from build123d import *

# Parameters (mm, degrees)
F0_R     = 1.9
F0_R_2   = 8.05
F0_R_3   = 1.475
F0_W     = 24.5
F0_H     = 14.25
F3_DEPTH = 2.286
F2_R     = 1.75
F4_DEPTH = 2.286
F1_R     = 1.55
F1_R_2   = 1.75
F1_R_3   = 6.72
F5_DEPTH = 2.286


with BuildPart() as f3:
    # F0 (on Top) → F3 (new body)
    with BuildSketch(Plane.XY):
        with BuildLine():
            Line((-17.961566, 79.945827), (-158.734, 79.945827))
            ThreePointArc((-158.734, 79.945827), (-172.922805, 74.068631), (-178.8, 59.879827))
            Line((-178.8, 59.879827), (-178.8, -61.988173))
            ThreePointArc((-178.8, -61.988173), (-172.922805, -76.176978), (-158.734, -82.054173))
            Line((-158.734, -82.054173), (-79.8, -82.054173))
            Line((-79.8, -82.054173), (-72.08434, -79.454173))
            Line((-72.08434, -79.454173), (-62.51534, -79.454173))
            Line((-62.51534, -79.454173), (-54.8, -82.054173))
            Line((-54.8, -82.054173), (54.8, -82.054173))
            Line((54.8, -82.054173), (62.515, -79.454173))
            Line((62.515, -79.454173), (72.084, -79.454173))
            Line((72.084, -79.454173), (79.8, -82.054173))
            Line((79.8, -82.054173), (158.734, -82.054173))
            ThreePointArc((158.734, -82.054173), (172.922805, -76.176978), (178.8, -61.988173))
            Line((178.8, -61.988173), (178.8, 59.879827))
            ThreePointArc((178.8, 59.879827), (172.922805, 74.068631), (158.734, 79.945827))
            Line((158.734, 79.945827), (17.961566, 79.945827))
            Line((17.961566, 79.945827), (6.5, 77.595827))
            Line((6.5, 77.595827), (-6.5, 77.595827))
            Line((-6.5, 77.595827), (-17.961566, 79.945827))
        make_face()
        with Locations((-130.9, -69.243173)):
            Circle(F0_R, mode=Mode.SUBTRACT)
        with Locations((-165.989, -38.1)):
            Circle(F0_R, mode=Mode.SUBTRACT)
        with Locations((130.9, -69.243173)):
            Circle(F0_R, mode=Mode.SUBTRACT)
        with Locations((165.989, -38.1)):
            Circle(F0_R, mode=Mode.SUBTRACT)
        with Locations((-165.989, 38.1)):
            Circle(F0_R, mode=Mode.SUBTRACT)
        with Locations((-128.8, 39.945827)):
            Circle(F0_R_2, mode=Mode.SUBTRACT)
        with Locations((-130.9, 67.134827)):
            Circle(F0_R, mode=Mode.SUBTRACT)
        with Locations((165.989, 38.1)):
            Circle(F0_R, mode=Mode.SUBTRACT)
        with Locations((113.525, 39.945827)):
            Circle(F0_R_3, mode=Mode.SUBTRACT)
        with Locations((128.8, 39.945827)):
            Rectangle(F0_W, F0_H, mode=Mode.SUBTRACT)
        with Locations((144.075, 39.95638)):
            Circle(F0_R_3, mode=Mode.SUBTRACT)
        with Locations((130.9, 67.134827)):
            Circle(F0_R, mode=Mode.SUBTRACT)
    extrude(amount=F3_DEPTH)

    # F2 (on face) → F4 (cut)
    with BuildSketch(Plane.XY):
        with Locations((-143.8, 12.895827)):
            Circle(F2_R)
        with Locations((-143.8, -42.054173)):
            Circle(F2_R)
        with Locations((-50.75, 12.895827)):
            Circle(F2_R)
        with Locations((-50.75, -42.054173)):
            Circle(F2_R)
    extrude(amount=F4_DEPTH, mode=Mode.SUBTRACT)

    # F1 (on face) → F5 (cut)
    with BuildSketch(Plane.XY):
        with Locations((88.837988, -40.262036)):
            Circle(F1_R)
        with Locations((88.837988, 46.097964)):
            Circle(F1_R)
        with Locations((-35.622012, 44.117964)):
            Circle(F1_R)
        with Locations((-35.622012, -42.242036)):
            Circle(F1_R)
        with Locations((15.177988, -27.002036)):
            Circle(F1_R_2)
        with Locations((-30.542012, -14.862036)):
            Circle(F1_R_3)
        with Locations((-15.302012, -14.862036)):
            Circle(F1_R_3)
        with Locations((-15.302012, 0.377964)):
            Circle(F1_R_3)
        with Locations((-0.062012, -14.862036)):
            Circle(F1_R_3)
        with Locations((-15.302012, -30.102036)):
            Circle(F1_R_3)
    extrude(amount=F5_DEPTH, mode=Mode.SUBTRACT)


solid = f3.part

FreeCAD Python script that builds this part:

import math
import FreeCAD as App
import Part
import Sketcher

V = App.Vector
Q = App.Units.Quantity

doc = App.newDocument("Part")
params = doc.addObject("Spreadsheet::Sheet", "Params")
for row, (alias, value) in enumerate([
    ("sketch1_diameter", "3.8 mm"),
    ("sketch1_diameter2", "16.1 mm"),
    ("sketch1_diameter3", "2.95 mm"),
    ("sketch1_width", "13 mm"),
    ("sketch1_width2", "109.6 mm"),
    ("pad1_length", "2.286 mm"),
    ("sketch2_diameter", "3.5 mm"),
    ("pocket1_length", "2.286 mm"),
    ("sketch3_diameter", "3.1 mm"),
    ("sketch3_diameter2", "3.5 mm"),
    ("sketch3_diameter3", "13.44 mm"),
    ("pocket2_length", "2.286 mm"),
], start=1):
    params.set(f"A{row}", alias)
    params.set(f"B{row}", "=" + value)
    params.setAlias(f"B{row}", alias)

body = doc.addObject("PartDesign::Body", "Body")

sketch1 = body.newObject("Sketcher::SketchObject", "Sketch")
sketch1.AttachmentSupport = (doc.getObject("XY_Plane"), [""])
sketch1.MapMode = "FlatFace"
sketch1.addGeometry(Part.LineSegment(V(-17.961566, 79.945827, 0), V(-158.734, 79.945827, 0)), False)
sketch1.addGeometry(Part.ArcOfCircle(Part.Circle(V(-158.733999, 59.879826, 0), V(0, 0, 1), 20.066001), math.radians(90.000002), math.radians(179.999998)), False)
sketch1.addGeometry(Part.LineSegment(V(-178.8, 59.879827, 0), V(-178.8, -61.988173, 0)), False)
sketch1.addGeometry(Part.ArcOfCircle(Part.Circle(V(-158.734001, -61.988174, 0), V(0, 0, 1), 20.065999), math.radians(179.999997), math.radians(270.000003)), False)
sketch1.addGeometry(Part.LineSegment(V(-158.734, -82.054173, 0), V(-79.8, -82.054173, 0)), False)
sketch1.addGeometry(Part.LineSegment(V(-79.8, -82.054173, 0), V(-72.08434, -79.454173, 0)), False)
sketch1.addGeometry(Part.LineSegment(V(-72.08434, -79.454173, 0), V(-62.51534, -79.454173, 0)), False)
sketch1.addGeometry(Part.LineSegment(V(-62.51534, -79.454173, 0), V(-54.8, -82.054173, 0)), False)
sketch1.addGeometry(Part.LineSegment(V(-54.8, -82.054173, 0), V(54.8, -82.054173, 0)), False)
sketch1.addGeometry(Part.LineSegment(V(54.8, -82.054173, 0), V(62.515, -79.454173, 0)), False)
sketch1.addGeometry(Part.LineSegment(V(62.515, -79.454173, 0), V(72.084, -79.454173, 0)), False)
sketch1.addGeometry(Part.LineSegment(V(72.084, -79.454173, 0), V(79.8, -82.054173, 0)), False)
sketch1.addGeometry(Part.LineSegment(V(79.8, -82.054173, 0), V(158.734, -82.054173, 0)), False)
sketch1.addGeometry(Part.ArcOfCircle(Part.Circle(V(158.734001, -61.988174, 0), V(0, 0, 1), 20.065999), math.radians(-90.000003), math.radians(0.000003)), False)
sketch1.addGeometry(Part.LineSegment(V(178.8, -61.988173, 0), V(178.8, 59.879827, 0)), False)
sketch1.addGeometry(Part.ArcOfCircle(Part.Circle(V(158.733999, 59.879826, 0), V(0, 0, 1), 20.066001), math.radians(0.000002), math.radians(89.999998)), False)
sketch1.addGeometry(Part.LineSegment(V(158.734, 79.945827, 0), V(17.961566, 79.945827, 0)), False)
sketch1.addGeometry(Part.LineSegment(V(17.961566, 79.945827, 0), V(6.5, 77.595827, 0)), False)
sketch1.addGeometry(Part.LineSegment(V(6.5, 77.595827, 0), V(-6.5, 77.595827, 0)), False)
sketch1.addGeometry(Part.LineSegment(V(-6.5, 77.595827, 0), V(-17.961566, 79.945827, 0)), False)
sketch1.addGeometry(Part.Circle(V(-130.9, -69.243173, 0), V(0, 0, 1), 1.9), False)
sketch1.addGeometry(Part.Circle(V(-165.989, -38.1, 0), V(0, 0, 1), 1.9), False)
sketch1.addGeometry(Part.Circle(V(130.9, -69.243173, 0), V(0, 0, 1), 1.9), False)
sketch1.addGeometry(Part.Circle(V(165.989, -38.1, 0), V(0, 0, 1), 1.9), False)
sketch1.addGeometry(Part.Circle(V(-165.989, 38.1, 0), V(0, 0, 1), 1.9), False)
sketch1.addGeometry(Part.Circle(V(-128.8, 39.945827, 0), V(0, 0, 1), 8.05), False)
sketch1.addGeometry(Part.Circle(V(-130.9, 67.134827, 0), V(0, 0, 1), 1.9), False)
sketch1.addGeometry(Part.Circle(V(113.525, 39.945827, 0), V(0, 0, 1), 1.475), False)
sketch1.addGeometry(Part.LineSegment(V(141.05, 32.820827, 0), V(116.55, 32.820827, 0)), False)
sketch1.addGeometry(Part.LineSegment(V(116.55, 32.820827, 0), V(116.55, 47.070827, 0)), False)
sketch1.addGeometry(Part.LineSegment(V(116.55, 47.070827, 0), V(141.05, 47.070827, 0)), False)
sketch1.addGeometry(Part.LineSegment(V(141.05, 47.070827, 0), V(141.05, 32.820827, 0)), False)
sketch1.addGeometry(Part.Circle(V(144.075, 39.95638, 0), V(0, 0, 1), 1.475), False)
sketch1.addGeometry(Part.Circle(V(165.989, 38.1, 0), V(0, 0, 1), 1.9), False)
sketch1.addGeometry(Part.Circle(V(130.9, 67.134827, 0), V(0, 0, 1), 1.9), False)
sketch1.addConstraint(Sketcher.Constraint("Tangent", 0, 2, 1, 1))
sketch1.addConstraint(Sketcher.Constraint("Tangent", 1, 2, 2, 1))
sketch1.addConstraint(Sketcher.Constraint("Tangent", 2, 2, 3, 1))
sketch1.addConstraint(Sketcher.Constraint("Tangent", 3, 2, 4, 1))
sketch1.addConstraint(Sketcher.Constraint("Coincident", 4, 2, 5, 1))
sketch1.addConstraint(Sketcher.Constraint("Coincident", 5, 2, 6, 1))
sketch1.addConstraint(Sketcher.Constraint("Coincident", 6, 2, 7, 1))
sketch1.addConstraint(Sketcher.Constraint("Coincident", 7, 2, 8, 1))
sketch1.addConstraint(Sketcher.Constraint("Coincident", 8, 2, 9, 1))
sketch1.addConstraint(Sketcher.Constraint("Coincident", 9, 2, 10, 1))
sketch1.addConstraint(Sketcher.Constraint("Coincident", 10, 2, 11, 1))
sketch1.addConstraint(Sketcher.Constraint("Coincident", 11, 2, 12, 1))
sketch1.addConstraint(Sketcher.Constraint("Tangent", 12, 2, 13, 1))
sketch1.addConstraint(Sketcher.Constraint("Tangent", 13, 2, 14, 1))
sketch1.addConstraint(Sketcher.Constraint("Tangent", 14, 2, 15, 1))
sketch1.addConstraint(Sketcher.Constraint("Tangent", 15, 2, 16, 1))
sketch1.addConstraint(Sketcher.Constraint("Coincident", 16, 2, 17, 1))
sketch1.addConstraint(Sketcher.Constraint("Coincident", 17, 2, 18, 1))
sketch1.addConstraint(Sketcher.Constraint("Coincident", 18, 2, 19, 1))
sketch1.addConstraint(Sketcher.Constraint("Coincident", 19, 2, 0, 1))
sketch1.addConstraint(Sketcher.Constraint("Coincident", 28, 2, 29, 1))
sketch1.addConstraint(Sketcher.Constraint("Coincident", 29, 2, 30, 1))
sketch1.addConstraint(Sketcher.Constraint("Coincident", 30, 2, 31, 1))
sketch1.addConstraint(Sketcher.Constraint("Coincident", 31, 2, 28, 1))
sketch1.addConstraint(Sketcher.Constraint("Horizontal", 0))
sketch1.addConstraint(Sketcher.Constraint("Vertical", 2))
sketch1.addConstraint(Sketcher.Constraint("Horizontal", 4))
sketch1.addConstraint(Sketcher.Constraint("Horizontal", 6))
sketch1.addConstraint(Sketcher.Constraint("Horizontal", 8))
sketch1.addConstraint(Sketcher.Constraint("Horizontal", 10))
sketch1.addConstraint(Sketcher.Constraint("Horizontal", 12))
sketch1.addConstraint(Sketcher.Constraint("Vertical", 14))
sketch1.addConstraint(Sketcher.Constraint("Horizontal", 16))
sketch1.addConstraint(Sketcher.Constraint("Horizontal", 18))
sketch1.addConstraint(Sketcher.Constraint("Horizontal", 28))
sketch1.addConstraint(Sketcher.Constraint("Vertical", 29))
sketch1.addConstraint(Sketcher.Constraint("Horizontal", 30))
sketch1.addConstraint(Sketcher.Constraint("Vertical", 31))
sketch1.addConstraint(Sketcher.Constraint("Equal", 1, 3))
sketch1.addConstraint(Sketcher.Constraint("Equal", 3, 13))
sketch1.addConstraint(Sketcher.Constraint("Equal", 13, 15))
sketch1.addConstraint(Sketcher.Constraint("Equal", 20, 21))
sketch1.addConstraint(Sketcher.Constraint("Equal", 21, 22))
sketch1.addConstraint(Sketcher.Constraint("Equal", 22, 23))
sketch1.addConstraint(Sketcher.Constraint("Equal", 23, 24))
sketch1.addConstraint(Sketcher.Constraint("Equal", 24, 26))
sketch1.addConstraint(Sketcher.Constraint("Equal", 27, 32))
sketch1.addConstraint(Sketcher.Constraint("Equal", 26, 33))
sketch1.addConstraint(Sketcher.Constraint("Equal", 33, 34))
sketch1.addConstraint(Sketcher.Constraint("Symmetric", 23, 3, 24, 3, -1, 1))
sketch1.addConstraint(Sketcher.Constraint("Symmetric", 21, 3, 33, 3, -1, 1))
sketch1.addConstraint(Sketcher.Constraint("Symmetric", 3, 3, 13, 3, -2))
sketch1.addConstraint(Sketcher.Constraint("Symmetric", 20, 3, 22, 3, -2))
sketch1.addConstraint(Sketcher.Constraint("Symmetric", 21, 3, 23, 3, -2))
sketch1.addConstraint(Sketcher.Constraint("Symmetric", 26, 3, 34, 3, -2))
sketch1.addConstraint(Sketcher.Constraint("Symmetric", 16, 2, 19, 2, -2))
sketch1.addConstraint(Sketcher.Constraint("Horizontal", 25, 3, 27, 3))
sketch1.addConstraint(Sketcher.Constraint("Horizontal", 4, 2, 7, 2))
sketch1.addConstraint(Sketcher.Constraint("Horizontal", 6, 2, 9, 2))
sketch1.addConstraint(Sketcher.Constraint("Vertical", 20, 3, 26, 3))
sketch1.addConstraint(Sketcher.Constraint("Equal", 6, 10))
sketch1.addConstraint(Sketcher.Constraint("Equal", 4, 12))
sketch1.addConstraint(Sketcher.Constraint("Equal", 17, 19))
sketch1.addConstraint(Sketcher.Constraint("Diameter", 20, Q("3.8 mm")))
sketch1.addConstraint(Sketcher.Constraint("Diameter", 25, Q("16.1 mm")))
sketch1.addConstraint(Sketcher.Constraint("Diameter", 27, Q("2.95 mm")))
sketch1.addConstraint(Sketcher.Constraint("DistanceX", 18, 2, 18, 1, Q("13 mm")))
sketch1.addConstraint(Sketcher.Constraint("DistanceX", 8, 1, 8, 2, Q("109.6 mm")))
sketch1.addConstraint(Sketcher.Constraint("DistanceX", 28, 2, 28, 1, Q("24.5 mm")))
sketch1.addConstraint(Sketcher.Constraint("Radius", 1, Q("20.066001 mm")))
sketch1.addConstraint(Sketcher.Constraint("DistanceY", 25, 3, 0, 2, Q("40 mm")))
sketch1.addConstraint(Sketcher.Constraint("DistanceX", 1, 2, 25, 3, Q("50 mm")))
sketch1.addConstraint(Sketcher.Constraint("DistanceX", 2, 2, 4, 2, Q("99 mm")))
sketch1.addConstraint(Sketcher.Constraint("DistanceX", 4, 2, 7, 2, Q("25 mm")))
sketch1.addConstraint(Sketcher.Constraint("DistanceX", 8, 2, 11, 2, Q("25 mm")))
sketch1.addConstraint(Sketcher.Constraint("Distance", 17, Q("11.7 mm")))
sketch1.addConstraint(Sketcher.Constraint("DistanceY", 29, 1, 29, 2, Q("14.25 mm")))
sketch1.addConstraint(Sketcher.Constraint("DistanceX", 20, 3, -1, 1, Q("130.9 mm")))
sketch1.addConstraint(Sketcher.Constraint("DistanceY", 21, 3, -1, 1, Q("38.1 mm")))
sketch1.addConstraint(Sketcher.Constraint("DistanceY", 4, 2, 5, 2, Q("2.6 mm")))
sketch1.addConstraint(Sketcher.Constraint("DistanceX", 6, 1, 6, 2, Q("9.569 mm")))
sketch1.addConstraint(Sketcher.Constraint("DistanceY", 2, 2, 2, 1, Q("121.868 mm")))
sketch1.addConstraint(Sketcher.Constraint("DistanceX", -1, 1, 28, 2, Q("116.55 mm")))
sketch1.addConstraint(Sketcher.Constraint("DistanceX", 27, 3, 32, 3, Q("30.55 mm")))
sketch1.addConstraint(Sketcher.Constraint("DistanceX", 10, 2, 13, 3, Q("86.650001 mm")))
sketch1.addConstraint(Sketcher.Constraint("DistanceY", 17, 2, 16, 2, Q("2.35 mm")))
sketch1.addConstraint(Sketcher.Constraint("DistanceX", 21, 3, -1, 1, Q("165.989 mm")))
sketch1.addConstraint(Sketcher.Constraint("DistanceX", -1, 1, 27, 3, Q("113.525 mm")))
sketch1.addConstraint(Sketcher.Constraint("DistanceY", 20, 3, 3, 3, Q("7.254999 mm")))
sketch1.addConstraint(Sketcher.Constraint("DistanceY", 25, 3, 26, 3, Q("27.189 mm")))
sketch1.addConstraint(Sketcher.Constraint("DistanceY", 28, 2, 27, 3, Q("7.125 mm")))
sketch1.addConstraint(Sketcher.Constraint("Distance", 7, Q("8.14165 mm")))
sketch1.addConstraint(Sketcher.Constraint("DistanceY", -1, 1, 32, 3, Q("39.95638 mm")))
sketch1.addConstraint(Sketcher.Constraint("DistanceY", -1, 1, 1, 3, Q("59.879826 mm")))
sketch1.setExpression("Constraints[63]", "Params.sketch1_diameter")
sketch1.setExpression("Constraints[64]", "Params.sketch1_diameter2")
sketch1.setExpression("Constraints[65]", "Params.sketch1_diameter3")
sketch1.setExpression("Constraints[66]", "Params.sketch1_width")
sketch1.setExpression("Constraints[67]", "Params.sketch1_width2")
pad1 = body.newObject("PartDesign::Pad", "Pad")
pad1.Profile = sketch1
pad1.setExpression("Length", "Params.pad1_length")

sketch2 = body.newObject("Sketcher::SketchObject", "Sketch001")
sketch2.AttachmentSupport = (doc.getObject("XY_Plane"), [""])
sketch2.MapMode = "FlatFace"
sketch2.addGeometry(Part.Circle(V(-143.8, 12.895827, 0), V(0, 0, 1), 1.75), False)
sketch2.addGeometry(Part.Circle(V(-143.8, -42.054173, 0), V(0, 0, 1), 1.75), False)
sketch2.addGeometry(Part.Circle(V(-50.75, 12.895827, 0), V(0, 0, 1), 1.75), False)
sketch2.addGeometry(Part.Circle(V(-50.75, -42.054173, 0), V(0, 0, 1), 1.75), False)
sketch2.addConstraint(Sketcher.Constraint("Equal", 0, 1))
sketch2.addConstraint(Sketcher.Constraint("Equal", 1, 2))
sketch2.addConstraint(Sketcher.Constraint("Equal", 2, 3))
sketch2.addConstraint(Sketcher.Constraint("Horizontal", 0, 3, 2, 3))
sketch2.addConstraint(Sketcher.Constraint("Horizontal", 1, 3, 3, 3))
sketch2.addConstraint(Sketcher.Constraint("Vertical", 0, 3, 1, 3))
sketch2.addConstraint(Sketcher.Constraint("Vertical", 2, 3, 3, 3))
sketch2.addConstraint(Sketcher.Constraint("Diameter", 0, Q("3.5 mm")))
sketch2.addConstraint(Sketcher.Constraint("DistanceX", 0, 3, -1, 1, Q("143.8 mm")))
sketch2.addConstraint(Sketcher.Constraint("DistanceX", 2, 3, -1, 1, Q("50.75 mm")))
sketch2.addConstraint(Sketcher.Constraint("DistanceY", 1, 3, 0, 3, Q("54.95 mm")))
sketch2.addConstraint(Sketcher.Constraint("DistanceY", -1, 1, 0, 3, Q("12.895827 mm")))
sketch2.setExpression("Constraints[7]", "Params.sketch2_diameter")
pocket1 = body.newObject("PartDesign::Pocket", "Pocket")
pocket1.Profile = sketch2
pocket1.setExpression("Length", "Params.pocket1_length")
pocket1.Reversed = True

sketch3 = body.newObject("Sketcher::SketchObject", "Sketch002")
sketch3.AttachmentSupport = (doc.getObject("XY_Plane"), [""])
sketch3.MapMode = "FlatFace"
sketch3.addGeometry(Part.Circle(V(88.837988, -40.262036, 0), V(0, 0, 1), 1.55), False)
sketch3.addGeometry(Part.Circle(V(88.837988, 46.097964, 0), V(0, 0, 1), 1.55), False)
sketch3.addGeometry(Part.Circle(V(-35.622012, 44.117964, 0), V(0, 0, 1), 1.55), False)
sketch3.addGeometry(Part.Circle(V(-35.622012, -42.242036, 0), V(0, 0, 1), 1.55), False)
sketch3.addGeometry(Part.Circle(V(15.177988, -27.002036, 0), V(0, 0, 1), 1.75), False)
sketch3.addGeometry(Part.Circle(V(-30.542012, -14.862036, 0), V(0, 0, 1), 6.72), False)
sketch3.addGeometry(Part.Circle(V(-15.302012, -14.862036, 0), V(0, 0, 1), 6.72), False)
sketch3.addGeometry(Part.Circle(V(-15.302012, 0.377964, 0), V(0, 0, 1), 6.72), False)
sketch3.addGeometry(Part.Circle(V(-0.062012, -14.862036, 0), V(0, 0, 1), 6.72), False)
sketch3.addGeometry(Part.Circle(V(-15.302012, -30.102036, 0), V(0, 0, 1), 6.72), False)
sketch3.addConstraint(Sketcher.Constraint("Equal", 0, 1))
sketch3.addConstraint(Sketcher.Constraint("Equal", 1, 2))
sketch3.addConstraint(Sketcher.Constraint("Equal", 2, 3))
sketch3.addConstraint(Sketcher.Constraint("Equal", 5, 6))
sketch3.addConstraint(Sketcher.Constraint("Equal", 6, 7))
sketch3.addConstraint(Sketcher.Constraint("Equal", 7, 8))
sketch3.addConstraint(Sketcher.Constraint("Equal", 8, 9))
sketch3.addConstraint(Sketcher.Constraint("Horizontal", 5, 3, 6, 3))
sketch3.addConstraint(Sketcher.Constraint("Horizontal", 6, 3, 8, 3))
sketch3.addConstraint(Sketcher.Constraint("Vertical", 0, 3, 1, 3))
sketch3.addConstraint(Sketcher.Constraint("Vertical", 2, 3, 3, 3))
sketch3.addConstraint(Sketcher.Constraint("Vertical", 6, 3, 7, 3))
sketch3.addConstraint(Sketcher.Constraint("Vertical", 7, 3, 9, 3))
sketch3.addConstraint(Sketcher.Constraint("Diameter", 0, Q("3.1 mm")))
sketch3.addConstraint(Sketcher.Constraint("Diameter", 4, Q("3.5 mm")))
sketch3.addConstraint(Sketcher.Constraint("Diameter", 5, Q("13.44 mm")))
sketch3.addConstraint(Sketcher.Constraint("DistanceX", 3, 3, 4, 3, Q("50.8 mm")))
sketch3.addConstraint(Sketcher.Constraint("DistanceY", 4, 3, 1, 3, Q("73.1 mm")))
sketch3.addConstraint(Sketcher.Constraint("DistanceY", 0, 3, 5, 3, Q("25.4 mm")))
sketch3.addConstraint(Sketcher.Constraint("DistanceY", 0, 3, 1, 3, Q("86.36 mm")))
sketch3.addConstraint(Sketcher.Constraint("DistanceX", 2, 3, 1, 3, Q("124.46 mm")))
sketch3.addConstraint(Sketcher.Constraint("DistanceY", 2, 3, 1, 3, Q("1.98 mm")))
sketch3.addConstraint(Sketcher.Constraint("DistanceY", 3, 3, 2, 3, Q("86.36 mm")))
sketch3.addConstraint(Sketcher.Constraint("DistanceX", 3, 3, 5, 3, Q("5.08 mm")))
sketch3.addConstraint(Sketcher.Constraint("DistanceX", 5, 3, 6, 3, Q("15.24 mm")))
sketch3.addConstraint(Sketcher.Constraint("DistanceY", 6, 3, 7, 3, Q("15.24 mm")))
sketch3.addConstraint(Sketcher.Constraint("DistanceX", 6, 3, 8, 3, Q("15.24 mm")))
sketch3.addConstraint(Sketcher.Constraint("DistanceY", 9, 3, 6, 3, Q("15.24 mm")))
sketch3.addConstraint(Sketcher.Constraint("DistanceX", 2, 3, -1, 1, Q("35.622012 mm")))
sketch3.addConstraint(Sketcher.Constraint("DistanceY", 0, 3, -1, 1, Q("40.262036 mm")))
sketch3.setExpression("Constraints[13]", "Params.sketch3_diameter")
sketch3.setExpression("Constraints[14]", "Params.sketch3_diameter2")
sketch3.setExpression("Constraints[15]", "Params.sketch3_diameter3")
pocket2 = body.newObject("PartDesign::Pocket", "Pocket001")
pocket2.Profile = sketch3
pocket2.setExpression("Length", "Params.pocket2_length")
pocket2.Reversed = True

doc.recompute()
